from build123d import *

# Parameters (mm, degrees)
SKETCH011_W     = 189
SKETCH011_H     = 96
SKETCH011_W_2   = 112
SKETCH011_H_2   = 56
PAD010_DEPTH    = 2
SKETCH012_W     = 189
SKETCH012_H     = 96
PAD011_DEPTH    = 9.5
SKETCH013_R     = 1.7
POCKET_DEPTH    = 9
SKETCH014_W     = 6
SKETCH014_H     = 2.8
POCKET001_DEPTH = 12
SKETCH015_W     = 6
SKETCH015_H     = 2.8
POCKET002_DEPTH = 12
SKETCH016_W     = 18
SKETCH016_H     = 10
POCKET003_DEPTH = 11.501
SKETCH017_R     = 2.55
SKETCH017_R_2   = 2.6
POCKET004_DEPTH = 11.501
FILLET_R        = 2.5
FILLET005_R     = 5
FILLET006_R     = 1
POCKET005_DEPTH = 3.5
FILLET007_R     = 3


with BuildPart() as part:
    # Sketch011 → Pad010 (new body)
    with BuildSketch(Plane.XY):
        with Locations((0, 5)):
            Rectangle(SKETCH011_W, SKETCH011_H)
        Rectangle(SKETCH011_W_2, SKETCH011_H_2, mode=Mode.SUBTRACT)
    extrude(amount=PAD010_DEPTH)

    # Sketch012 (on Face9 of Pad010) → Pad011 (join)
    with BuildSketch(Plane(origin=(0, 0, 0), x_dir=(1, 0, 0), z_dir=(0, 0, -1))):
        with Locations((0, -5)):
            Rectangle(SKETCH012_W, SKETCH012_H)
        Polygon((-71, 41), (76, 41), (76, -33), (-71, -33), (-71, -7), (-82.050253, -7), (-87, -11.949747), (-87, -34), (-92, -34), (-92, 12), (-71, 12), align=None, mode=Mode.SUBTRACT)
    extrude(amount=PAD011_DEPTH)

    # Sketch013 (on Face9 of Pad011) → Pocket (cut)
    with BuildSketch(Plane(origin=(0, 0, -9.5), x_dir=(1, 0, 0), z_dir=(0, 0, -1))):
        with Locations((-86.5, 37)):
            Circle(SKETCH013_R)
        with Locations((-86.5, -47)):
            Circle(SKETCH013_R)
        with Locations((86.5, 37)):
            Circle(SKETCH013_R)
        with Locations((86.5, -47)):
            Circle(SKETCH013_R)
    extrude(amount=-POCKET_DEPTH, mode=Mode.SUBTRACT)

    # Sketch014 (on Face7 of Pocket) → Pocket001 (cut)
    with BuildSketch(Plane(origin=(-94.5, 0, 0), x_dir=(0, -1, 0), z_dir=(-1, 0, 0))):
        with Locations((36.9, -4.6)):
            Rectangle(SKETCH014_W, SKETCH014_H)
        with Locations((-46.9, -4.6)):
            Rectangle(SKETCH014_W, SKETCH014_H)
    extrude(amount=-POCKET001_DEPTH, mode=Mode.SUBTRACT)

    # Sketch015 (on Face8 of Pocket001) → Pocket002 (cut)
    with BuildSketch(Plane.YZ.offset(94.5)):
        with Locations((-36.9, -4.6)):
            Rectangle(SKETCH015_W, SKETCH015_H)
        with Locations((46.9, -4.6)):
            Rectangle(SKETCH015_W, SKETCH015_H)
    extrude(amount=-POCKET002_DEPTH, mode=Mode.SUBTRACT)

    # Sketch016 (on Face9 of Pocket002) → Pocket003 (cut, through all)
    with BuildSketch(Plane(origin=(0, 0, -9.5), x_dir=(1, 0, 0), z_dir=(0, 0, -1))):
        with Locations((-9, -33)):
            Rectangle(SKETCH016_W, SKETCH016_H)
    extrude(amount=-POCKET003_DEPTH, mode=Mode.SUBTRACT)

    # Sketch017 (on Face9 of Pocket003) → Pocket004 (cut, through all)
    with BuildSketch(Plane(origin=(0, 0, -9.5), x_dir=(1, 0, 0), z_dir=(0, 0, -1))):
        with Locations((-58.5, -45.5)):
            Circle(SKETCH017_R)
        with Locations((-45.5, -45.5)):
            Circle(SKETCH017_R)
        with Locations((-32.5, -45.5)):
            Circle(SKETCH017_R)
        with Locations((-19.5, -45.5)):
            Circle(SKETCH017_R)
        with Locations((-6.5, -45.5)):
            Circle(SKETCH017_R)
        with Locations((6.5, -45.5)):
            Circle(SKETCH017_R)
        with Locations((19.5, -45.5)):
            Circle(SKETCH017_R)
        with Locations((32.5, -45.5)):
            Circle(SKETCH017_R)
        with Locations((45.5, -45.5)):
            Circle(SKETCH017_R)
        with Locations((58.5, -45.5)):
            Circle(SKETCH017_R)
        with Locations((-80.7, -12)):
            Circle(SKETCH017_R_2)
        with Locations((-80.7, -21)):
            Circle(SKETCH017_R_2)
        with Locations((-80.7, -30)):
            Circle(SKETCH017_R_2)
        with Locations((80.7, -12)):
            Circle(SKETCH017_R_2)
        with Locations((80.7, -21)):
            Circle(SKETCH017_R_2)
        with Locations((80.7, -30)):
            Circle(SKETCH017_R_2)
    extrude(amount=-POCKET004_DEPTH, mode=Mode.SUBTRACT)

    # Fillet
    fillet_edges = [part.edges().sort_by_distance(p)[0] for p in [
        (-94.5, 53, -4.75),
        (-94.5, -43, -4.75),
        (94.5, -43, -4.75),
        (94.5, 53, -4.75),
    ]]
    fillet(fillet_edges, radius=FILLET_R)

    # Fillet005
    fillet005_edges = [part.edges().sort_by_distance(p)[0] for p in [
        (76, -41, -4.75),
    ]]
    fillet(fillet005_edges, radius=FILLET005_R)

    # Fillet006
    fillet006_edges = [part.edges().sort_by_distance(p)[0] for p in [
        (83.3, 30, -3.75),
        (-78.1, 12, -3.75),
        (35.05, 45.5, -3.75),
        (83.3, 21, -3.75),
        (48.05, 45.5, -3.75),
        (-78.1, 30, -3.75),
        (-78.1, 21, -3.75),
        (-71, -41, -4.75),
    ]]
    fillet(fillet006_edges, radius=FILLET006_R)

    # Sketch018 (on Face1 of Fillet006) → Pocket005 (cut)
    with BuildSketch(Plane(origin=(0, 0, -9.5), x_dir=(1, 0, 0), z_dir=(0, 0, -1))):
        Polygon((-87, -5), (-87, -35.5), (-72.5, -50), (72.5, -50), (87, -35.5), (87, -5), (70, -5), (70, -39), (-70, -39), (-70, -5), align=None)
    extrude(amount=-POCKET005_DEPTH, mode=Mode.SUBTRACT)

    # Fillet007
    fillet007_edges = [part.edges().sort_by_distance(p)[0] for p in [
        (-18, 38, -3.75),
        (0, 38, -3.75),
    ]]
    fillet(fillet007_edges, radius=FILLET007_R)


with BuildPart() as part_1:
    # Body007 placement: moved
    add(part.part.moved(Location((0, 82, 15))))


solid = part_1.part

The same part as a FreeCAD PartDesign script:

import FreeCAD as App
import Part
import Sketcher
Q = App.Units.Quantity


def edges_at(feature, points):
    """Names of the edges that pass closest to the given points."""
    edges = feature.Shape.Edges
    near = lambda p: min(range(len(edges)), key=lambda i: edges[i].distToShape(Part.Vertex(*p))[0])
    return sorted({f"Edge{near(p) + 1}" for p in points})


def add_polygon(sketch, points):
    """Adds a closed chain of lines whose ends are joined by coincident constraints."""
    first, n = sketch.GeometryCount, len(points)
    for a, b in zip(points, points[1:] + points[:1]):
        sketch.addGeometry(Part.LineSegment(App.Vector(*a, 0), App.Vector(*b, 0)), False)
    for i in range(n):
        sketch.addConstraint(Sketcher.Constraint("Coincident", first + i, 2, first + (i + 1) % n, 1))

doc = App.newDocument("Part")
body = doc.addObject("PartDesign::Body", "Body")

sketch1 = body.newObject("Sketcher::SketchObject", "Sketch")
sketch1.AttachmentSupport = (doc.getObject("XY_Plane"), [""])
sketch1.MapMode = "FlatFace"
add_polygon(sketch1, [(-94.5, 53), (-94.5, -43), (94.5, -43), (94.5, 53)])
add_polygon(sketch1, [(56, -28), (-56, -28), (-56, 28), (56, 28)])
sketch1.addConstraint(Sketcher.Constraint("Vertical", 0))
sketch1.addConstraint(Sketcher.Constraint("Horizontal", 1))
sketch1.addConstraint(Sketcher.Constraint("Vertical", 2))
sketch1.addConstraint(Sketcher.Constraint("Horizontal", 3))
sketch1.addConstraint(Sketcher.Constraint("Horizontal", 4))
sketch1.addConstraint(Sketcher.Constraint("Vertical", 5))
sketch1.addConstraint(Sketcher.Constraint("Horizontal", 6))
sketch1.addConstraint(Sketcher.Constraint("Vertical", 7))
sketch1.addConstraint(Sketcher.Constraint("Symmetric", 4, 2, 6, 2, -1, 1))
sketch1.addConstraint(Sketcher.Constraint("DistanceX", 1, 1, 1, 2, 189.0))
sketch1.addConstraint(Sketcher.Constraint("DistanceX", 4, 2, 4, 1, 112.0))
sketch1.addConstraint(Sketcher.Constraint("DistanceY", 0, 2, 0, 1, 96.0))
sketch1.addConstraint(Sketcher.Constraint("DistanceY", 5, 1, 5, 2, 56.0))
sketch1.addConstraint(Sketcher.Constraint("DistanceY", 0, 2, -1, 1, 43.0))
sketch1.addConstraint(Sketcher.Constraint("DistanceX", 0, 2, -1, 1, 94.5))
pad1 = body.newObject("PartDesign::Pad", "Pad")
pad1.Profile = sketch1
pad1.Length = 2

sketch2 = body.newObject("Sketcher::SketchObject", "Sketch001")
sketch2.AttachmentSupport = (doc.getObject("XY_Plane"), [""])
sketch2.MapMode = "FlatFace"
add_polygon(sketch2, [(-94.5, -43), (-94.5, 53), (94.5, 53), (94.5, -43)])
add_polygon(sketch2, [(-71, -12), (-71, -41), (76, -41), (76, 33), (-71, 33), (-71, 7), (-82.050253, 7), (-87, 11.949747), (-87, 34), (-92, 34), (-92, -12)])
sketch2.addConstraint(Sketcher.Constraint("Vertical", 0))
sketch2.addConstraint(Sketcher.Constraint("Horizontal", 1))
sketch2.addConstraint(Sketcher.Constraint("Vertical", 2))
sketch2.addConstraint(Sketcher.Constraint("Horizontal", 3))
sketch2.addConstraint(Sketcher.Constraint("Vertical", 4))
sketch2.addConstraint(Sketcher.Constraint("Horizontal", 5))
sketch2.addConstraint(Sketcher.Constraint("Vertical", 6))
sketch2.addConstraint(Sketcher.Constraint("Horizontal", 7))
sketch2.addConstraint(Sketcher.Constraint("Vertical", 8))
sketch2.addConstraint(Sketcher.Constraint("Horizontal", 9))
sketch2.addConstraint(Sketcher.Constraint("Vertical", 11))
sketch2.addConstraint(Sketcher.Constraint("Horizontal", 12))
sketch2.addConstraint(Sketcher.Constraint("Vertical", 13))
sketch2.addConstraint(Sketcher.Constraint("Horizontal", 14))
sketch2.addConstraint(Sketcher.Constraint("Vertical", 4, 2, 7, 2))
sketch2.addConstraint(Sketcher.Constraint("DistanceX", 1, 1, 1, 2, 189.0))
sketch2.addConstraint(Sketcher.Constraint("DistanceX", 5, 1, 5, 2, 147.0))
sketch2.addConstraint(Sketcher.Constraint("DistanceX", 12, 2, 12, 1, 5.0))
sketch2.addConstraint(Sketcher.Constraint("DistanceX", 14, 1, 14, 2, 21.0))
sketch2.addConstraint(Sketcher.Constraint("DistanceY", 0, 1, 0, 2, 96.0))
sketch2.addConstraint(Sketcher.Constraint("DistanceY", 4, 2, 4, 1, 29.0))
sketch2.addConstraint(Sketcher.Constraint("DistanceY", 6, 1, 6, 2, 74.0))
sketch2.addConstraint(Sketcher.Constraint("DistanceY", 8, 2, 8, 1, 26.0))
sketch2.addConstraint(Sketcher.Constraint("DistanceY", 13, 2, 13, 1, 46.0))
sketch2.addConstraint(Sketcher.Constraint("Angle", 10, Q("135 deg")))
sketch2.addConstraint(Sketcher.Constraint("Distance", 10, 6.999999))
sketch2.addConstraint(Sketcher.Constraint("DistanceY", -1, 1, 0, 2, 53.0))
sketch2.addConstraint(Sketcher.Constraint("DistanceX", 4, 2, -1, 1, 71.0))
sketch2.addConstraint(Sketcher.Constraint("DistanceY", 4, 2, -1, 1, 41.0))
sketch2.addConstraint(Sketcher.Constraint("DistanceX", 0, 2, -1, 1, 94.5))
pad2 = body.newObject("PartDesign::Pad", "Pad001")
pad2.Profile = sketch2
pad2.Length = 9.5
pad2.Reversed = True

sketch3 = body.newObject("Sketcher::SketchObject", "Sketch002")
sketch3.AttachmentSupport = (doc.getObject("XY_Plane"), [""])
sketch3.MapMode = "FlatFace"
sketch3.AttachmentOffset = App.Placement(App.Vector(0, 0, -9.5), App.Rotation())
sketch3.addGeometry(Part.Circle(App.Vector(-86.5, -37, 0), App.Vector(0, 0, 1), 1.7), False)
sketch3.addGeometry(Part.Circle(App.Vector(-86.5, 47, 0), App.Vector(0, 0, 1), 1.7), False)
sketch3.addGeometry(Part.Circle(App.Vector(86.5, -37, 0), App.Vector(0, 0, 1), 1.7), False)
sketch3.addGeometry(Part.Circle(App.Vector(86.5, 47, 0), App.Vector(0, 0, 1), 1.7), False)
sketch3.addConstraint(Sketcher.Constraint("Equal", 0, 1))
sketch3.addConstraint(Sketcher.Constraint("Equal", 1, 2))
sketch3.addConstraint(Sketcher.Constraint("Equal", 2, 3))
sketch3.addConstraint(Sketcher.Constraint("Symmetric", 0, 3, 2, 3, -2))
sketch3.addConstraint(Sketcher.Constraint("Symmetric", 1, 3, 3, 3, -2))
sketch3.addConstraint(Sketcher.Constraint("Vertical", 0, 3, 1, 3))
sketch3.addConstraint(Sketcher.Constraint("Diameter", 0, 3.4))
sketch3.addConstraint(Sketcher.Constraint("DistanceY", 0, 3, -1, 1, 37.0))
sketch3.addConstraint(Sketcher.Constraint("DistanceY", -1, 1, 1, 3, 47.0))
sketch3.addConstraint(Sketcher.Constraint("DistanceX", 0, 3, 2, 3, 173.0))
pocket1 = body.newObject("PartDesign::Pocket", "Pocket")
pocket1.Profile = sketch3
pocket1.Length = 9
pocket1.Reversed = True

sketch4 = body.newObject("Sketcher::SketchObject", "Sketch003")
sketch4.AttachmentSupport = (doc.getObject("YZ_Plane"), [""])
sketch4.MapMode = "FlatFace"
sketch4.AttachmentOffset = App.Placement(App.Vector(0, 0, -94.5), App.Rotation())
add_polygon(sketch4, [(-33.9, -3.2), (-33.9, -6), (-39.9, -6), (-39.9, -3.2)])
add_polygon(sketch4, [(49.9, -3.2), (49.9, -6), (43.9, -6), (43.9, -3.2)])
sketch4.addConstraint(Sketcher.Constraint("Vertical", 0))
sketch4.addConstraint(Sketcher.Constraint("Horizontal", 1))
sketch4.addConstraint(Sketcher.Constraint("Vertical", 2))
sketch4.addConstraint(Sketcher.Constraint("Horizontal", 3))
sketch4.addConstraint(Sketcher.Constraint("Vertical", 4))
sketch4.addConstraint(Sketcher.Constraint("Horizontal", 5))
sketch4.addConstraint(Sketcher.Constraint("Vertical", 6))
sketch4.addConstraint(Sketcher.Constraint("Horizontal", 7))
sketch4.addConstraint(Sketcher.Constraint("Horizontal", 1, 2, 4, 2))
sketch4.addConstraint(Sketcher.Constraint("Horizontal", 3, 2, 6, 2))
sketch4.addConstraint(Sketcher.Constraint("Equal", 3, 5))
sketch4.addConstraint(Sketcher.Constraint("DistanceX", 1, 2, 1, 1, 6.0))
sketch4.addConstraint(Sketcher.Constraint("DistanceY", 0, 2, 0, 1, 2.8))
sketch4.addConstraint(Sketcher.Constraint("DistanceY", 0, 2, -1, 1, 6.0))
sketch4.addConstraint(Sketcher.Constraint("DistanceX", 0, 2, -1, 1, 33.9))
sketch4.addConstraint(Sketcher.Constraint("DistanceX", -1, 1, 4, 2, 49.9))
pocket2 = body.newObject("PartDesign::Pocket", "Pocket001")
pocket2.Profile = sketch4
pocket2.Length = 12
pocket2.Reversed = True

sketch5 = body.newObject("Sketcher::SketchObject", "Sketch004")
sketch5.AttachmentSupport = (doc.getObject("YZ_Plane"), [""])
sketch5.MapMode = "FlatFace"
sketch5.AttachmentOffset = App.Placement(App.Vector(0, 0, 94.5), App.Rotation())
add_polygon(sketch5, [(-39.9, -3.2), (-39.9, -6), (-33.9, -6), (-33.9, -3.2)])
add_polygon(sketch5, [(43.9, -3.2), (43.9, -6), (49.9, -6), (49.9, -3.2)])
sketch5.addConstraint(Sketcher.Constraint("Vertical", 0))
sketch5.addConstraint(Sketcher.Constraint("Horizontal", 1))
sketch5.addConstraint(Sketcher.Constraint("Vertical", 2))
sketch5.addConstraint(Sketcher.Constraint("Horizontal", 3))
sketch5.addConstraint(Sketcher.Constraint("Vertical", 4))
sketch5.addConstraint(Sketcher.Constraint("Horizontal", 5))
sketch5.addConstraint(Sketcher.Constraint("Vertical", 6))
sketch5.addConstraint(Sketcher.Constraint("Horizontal", 7))
sketch5.addConstraint(Sketcher.Constraint("Horizontal", 1, 2, 4, 2))
sketch5.addConstraint(Sketcher.Constraint("Horizontal", 3, 2, 6, 2))
sketch5.addConstraint(Sketcher.Constraint("Equal", 3, 5))
sketch5.addConstraint(Sketcher.Constraint("DistanceX", 1, 1, 1, 2, 6.0))
sketch5.addConstraint(Sketcher.Constraint("DistanceY", 0, 2, 0, 1, 2.8))
sketch5.addConstraint(Sketcher.Constraint("DistanceY", 0, 2, -1, 1, 6.0))
sketch5.addConstraint(Sketcher.Constraint("DistanceX", 0, 2, -1, 1, 39.9))
sketch5.addConstraint(Sketcher.Constraint("DistanceX", -1, 1, 4, 2, 43.9))
pocket3 = body.newObject("PartDesign::Pocket", "Pocket002")
pocket3.Profile = sketch5
pocket3.Length = 12

sketch6 = body.newObject("Sketcher::SketchObject", "Sketch005")
sketch6.AttachmentSupport = (doc.getObject("XY_Plane"), [""])
sketch6.MapMode = "FlatFace"
sketch6.AttachmentOffset = App.Placement(App.Vector(0, 0, -9.5), App.Rotation())
add_polygon(sketch6, [(-18, 28), (-18, 38), (0, 38), (0, 28)])
sketch6.addConstraint(Sketcher.Constraint("Vertical", 0))
sketch6.addConstraint(Sketcher.Constraint("Horizontal", 1))
sketch6.addConstraint(Sketcher.Constraint("Vertical", 2))
sketch6.addConstraint(Sketcher.Constraint("Horizontal", 3))
sketch6.addConstraint(Sketcher.Constraint("PointOnObject", 1, 2, -2))
sketch6.addConstraint(Sketcher.Constraint("DistanceX", 1, 1, 1, 2, 18.0))
sketch6.addConstraint(Sketcher.Constraint("DistanceY", 0, 1, 0, 2, 10.0))
sketch6.addConstraint(Sketcher.Constraint("DistanceY", -1, 1, 0, 2, 38.0))
pocket4 = body.newObject("PartDesign::Pocket", "Pocket003")
pocket4.Profile = sketch6
pocket4.Type = "ThroughAll"
pocket4.Reversed = True

sketch7 = body.newObject("Sketcher::SketchObject", "Sketch006")
sketch7.AttachmentSupport = (doc.getObject("XY_Plane"), [""])
sketch7.MapMode = "FlatFace"
sketch7.AttachmentOffset = App.Placement(App.Vector(0, 0, -9.5), App.Rotation())
sketch7.addGeometry(Part.Circle(App.Vector(-58.5, 45.5, 0), App.Vector(0, 0, 1), 2.55), False)
sketch7.addGeometry(Part.Circle(App.Vector(-45.5, 45.5, 0), App.Vector(0, 0, 1), 2.55), False)
sketch7.addGeometry(Part.Circle(App.Vector(-32.5, 45.5, 0), App.Vector(0, 0, 1), 2.55), False)
sketch7.addGeometry(Part.Circle(App.Vector(-19.5, 45.5, 0), App.Vector(0, 0, 1), 2.55), False)
sketch7.addGeometry(Part.Circle(App.Vector(-6.5, 45.5, 0), App.Vector(0, 0, 1), 2.55), False)
sketch7.addGeometry(Part.Circle(App.Vector(6.5, 45.5, 0), App.Vector(0, 0, 1), 2.55), False)
sketch7.addGeometry(Part.Circle(App.Vector(19.5, 45.5, 0), App.Vector(0, 0, 1), 2.55), False)
sketch7.addGeometry(Part.Circle(App.Vector(32.5, 45.5, 0), App.Vector(0, 0, 1), 2.55), False)
sketch7.addGeometry(Part.Circle(App.Vector(45.5, 45.5, 0), App.Vector(0, 0, 1), 2.55), False)
sketch7.addGeometry(Part.Circle(App.Vector(58.5, 45.5, 0), App.Vector(0, 0, 1), 2.55), False)
sketch7.addGeometry(Part.Circle(App.Vector(-80.7, 12, 0), App.Vector(0, 0, 1), 2.6), False)
sketch7.addGeometry(Part.Circle(App.Vector(-80.7, 21, 0), App.Vector(0, 0, 1), 2.6), False)
sketch7.addGeometry(Part.Circle(App.Vector(-80.7, 30, 0), App.Vector(0, 0, 1), 2.6), False)
sketch7.addGeometry(Part.Circle(App.Vector(80.7, 12, 0), App.Vector(0, 0, 1), 2.6), False)
sketch7.addGeometry(Part.Circle(App.Vector(80.7, 21, 0), App.Vector(0, 0, 1), 2.6), False)
sketch7.addGeometry(Part.Circle(App.Vector(80.7, 30, 0), App.Vector(0, 0, 1), 2.6), False)
sketch7.addConstraint(Sketcher.Constraint("Equal", 0, 1))
sketch7.addConstraint(Sketcher.Constraint("Equal", 1, 2))
sketch7.addConstraint(Sketcher.Constraint("Equal", 2, 3))
sketch7.addConstraint(Sketcher.Constraint("Equal", 3, 4))
sketch7.addConstraint(Sketcher.Constraint("Equal", 4, 5))
sketch7.addConstraint(Sketcher.Constraint("Equal", 5, 6))
sketch7.addConstraint(Sketcher.Constraint("Equal", 6, 7))
sketch7.addConstraint(Sketcher.Constraint("Equal", 7, 8))
sketch7.addConstraint(Sketcher.Constraint("Equal", 8, 9))
sketch7.addConstraint(Sketcher.Constraint("Equal", 10, 11))
sketch7.addConstraint(Sketcher.Constraint("Equal", 11, 12))
sketch7.addConstraint(Sketcher.Constraint("Equal", 12, 13))
sketch7.addConstraint(Sketcher.Constraint("Equal", 13, 14))
sketch7.addConstraint(Sketcher.Constraint("Equal", 14, 15))
sketch7.addConstraint(Sketcher.Constraint("Symmetric", 4, 3, 5, 3, -2))
sketch7.addConstraint(Sketcher.Constraint("Symmetric", 3, 3, 6, 3, -2))
sketch7.addConstraint(Sketcher.Constraint("Symmetric", 2, 3, 7, 3, -2))
sketch7.addConstraint(Sketcher.Constraint("Symmetric", 1, 3, 8, 3, -2))
sketch7.addConstraint(Sketcher.Constraint("Symmetric", 0, 3, 9, 3, -2))
sketch7.addConstraint(Sketcher.Constraint("Symmetric", 10, 3, 13, 3, -2))
sketch7.addConstraint(Sketcher.Constraint("Symmetric", 11, 3, 14, 3, -2))
sketch7.addConstraint(Sketcher.Constraint("Symmetric", 12, 3, 15, 3, -2))
sketch7.addConstraint(Sketcher.Constraint("Horizontal", 0, 3, 1, 3))
sketch7.addConstraint(Sketcher.Constraint("Horizontal", 1, 3, 2, 3))
sketch7.addConstraint(Sketcher.Constraint("Horizontal", 2, 3, 3, 3))
sketch7.addConstraint(Sketcher.Constraint("Horizontal", 3, 3, 4, 3))
sketch7.addConstraint(Sketcher.Constraint("Vertical", 10, 3, 11, 3))
sketch7.addConstraint(Sketcher.Constraint("Vertical", 11, 3, 12, 3))
sketch7.addConstraint(Sketcher.Constraint("Diameter", 0, 5.1))
sketch7.addConstraint(Sketcher.Constraint("Diameter", 10, 5.2))
sketch7.addConstraint(Sketcher.Constraint("DistanceY", -1, 1, 10, 3, 12.0))
sketch7.addConstraint(Sketcher.Constraint("DistanceY", -1, 1, 11, 3, 21.0))
sketch7.addConstraint(Sketcher.Constraint("DistanceY", -1, 1, 12, 3, 30.0))
sketch7.addConstraint(Sketcher.Constraint("DistanceX", 0, 3, 1, 3, 13.0))
sketch7.addConstraint(Sketcher.Constraint("DistanceX", 1, 3, 2, 3, 13.0))
sketch7.addConstraint(Sketcher.Constraint("DistanceX", 2, 3, 3, 3, 13.0))
sketch7.addConstraint(Sketcher.Constraint("DistanceX", 3, 3, 4, 3, 13.0))
sketch7.addConstraint(Sketcher.Constraint("DistanceX", 4, 3, 5, 3, 13.0))
sketch7.addConstraint(Sketcher.Constraint("DistanceY", -1, 1, 0, 3, 45.5))
sketch7.addConstraint(Sketcher.Constraint("DistanceX", 10, 3, -1, 1, 80.7))
pocket5 = body.newObject("PartDesign::Pocket", "Pocket004")
pocket5.Profile = sketch7
pocket5.Type = "ThroughAll"
pocket5.Reversed = True
doc.recompute()

fillet = body.newObject("PartDesign::Fillet", "Fillet")
fillet.Base = (pocket5, edges_at(pocket5, [
    (-94.5, 53, -3.75),
    (-94.5, -43, -3.75),
    (94.5, -43, -3.75),
    (94.5, 53, -3.75),
]))
fillet.Radius = 2.5
doc.recompute()

fillet2 = body.newObject("PartDesign::Fillet", "Fillet001")
fillet2.Base = (fillet, edges_at(fillet, [(76, -41, -4.75)]))
fillet2.Radius = 5
doc.recompute()

fillet3 = body.newObject("PartDesign::Fillet", "Fillet002")
fillet3.Base = (fillet2, edges_at(fillet2, [
    (83.3, 30, -3.75),
    (-78.1, 12, -3.75),
    (35.05, 45.5, -3.75),
    (83.3, 21, -3.75),
    (48.05, 45.5, -3.75),
    (-78.1, 30, -3.75),
    (-78.1, 21, -3.75),
    (-71, -41, -4.75),
]))
fillet3.Radius = 1

sketch8 = body.newObject("Sketcher::SketchObject", "Sketch007")
sketch8.AttachmentSupport = (doc.getObject("XY_Plane"), [""])
sketch8.MapMode = "FlatFace"
sketch8.AttachmentOffset = App.Placement(App.Vector(0, 0, -9.5), App.Rotation())
add_polygon(sketch8, [(-87, 5), (-87, 35.5), (-72.5, 50), (72.5, 50), (87, 35.5), (87, 5), (70, 5), (70, 39), (-70, 39), (-70, 5)])
sketch8.addConstraint(Sketcher.Constraint("Vertical", 0))
sketch8.addConstraint(Sketcher.Constraint("Horizontal", 2))
sketch8.addConstraint(Sketcher.Constraint("Vertical", 4))
sketch8.addConstraint(Sketcher.Constraint("Horizontal", 5))
sketch8.addConstraint(Sketcher.Constraint("Vertical", 6))
sketch8.addConstraint(Sketcher.Constraint("Horizontal", 7))
sketch8.addConstraint(Sketcher.Constraint("Vertical", 8))
sketch8.addConstraint(Sketcher.Constraint("Horizontal", 9))
sketch8.addConstraint(Sketcher.Constraint("Symmetric", 0, 2, 3, 2, -2))
sketch8.addConstraint(Sketcher.Constraint("Symmetric", 5, 2, 8, 2, -2))
sketch8.addConstraint(Sketcher.Constraint("Perpendicular", 1, 3))
sketch8.addConstraint(Sketcher.Constraint("Equal", 1, 3))
sketch8.addConstraint(Sketcher.Constraint("DistanceX", 2, 1, 2, 2, 145.0))
sketch8.addConstraint(Sketcher.Constraint("DistanceX", 5, 2, 5, 1, 17.0))
sketch8.addConstraint(Sketcher.Constraint("DistanceX", 7, 2, 7, 1, 140.0))
sketch8.addConstraint(Sketcher.Constraint("DistanceY", 6, 1, 6, 2, 34.0))
sketch8.addConstraint(Sketcher.Constraint("DistanceY", 0, 1, 0, 2, 30.5))
sketch8.addConstraint(Sketcher.Constraint("DistanceY", -1, 1, 1, 2, 50.0))
pocket6 = body.newObject("PartDesign::Pocket", "Pocket005")
pocket6.Profile = sketch8
pocket6.Length = 3.5
pocket6.Reversed = True
doc.recompute()

fillet4 = body.newObject("PartDesign::Fillet", "Fillet003")
fillet4.Base = (pocket6, edges_at(pocket6, [(-18, 38, -3.75), (0, 38, -3.75)]))
fillet4.Radius = 3
body2 = doc.addObject("PartDesign::Body", "Body001")
doc.recompute()

body.Placement = App.Placement(App.Vector(0, 82, 15), App.Rotation(App.Vector(0, 0, 1), 0))
boolean = body2.newObject("PartDesign::Boolean", "Boolean")
boolean.Type = "Fuse"
boolean.addObjects([body])

doc.recompute()
